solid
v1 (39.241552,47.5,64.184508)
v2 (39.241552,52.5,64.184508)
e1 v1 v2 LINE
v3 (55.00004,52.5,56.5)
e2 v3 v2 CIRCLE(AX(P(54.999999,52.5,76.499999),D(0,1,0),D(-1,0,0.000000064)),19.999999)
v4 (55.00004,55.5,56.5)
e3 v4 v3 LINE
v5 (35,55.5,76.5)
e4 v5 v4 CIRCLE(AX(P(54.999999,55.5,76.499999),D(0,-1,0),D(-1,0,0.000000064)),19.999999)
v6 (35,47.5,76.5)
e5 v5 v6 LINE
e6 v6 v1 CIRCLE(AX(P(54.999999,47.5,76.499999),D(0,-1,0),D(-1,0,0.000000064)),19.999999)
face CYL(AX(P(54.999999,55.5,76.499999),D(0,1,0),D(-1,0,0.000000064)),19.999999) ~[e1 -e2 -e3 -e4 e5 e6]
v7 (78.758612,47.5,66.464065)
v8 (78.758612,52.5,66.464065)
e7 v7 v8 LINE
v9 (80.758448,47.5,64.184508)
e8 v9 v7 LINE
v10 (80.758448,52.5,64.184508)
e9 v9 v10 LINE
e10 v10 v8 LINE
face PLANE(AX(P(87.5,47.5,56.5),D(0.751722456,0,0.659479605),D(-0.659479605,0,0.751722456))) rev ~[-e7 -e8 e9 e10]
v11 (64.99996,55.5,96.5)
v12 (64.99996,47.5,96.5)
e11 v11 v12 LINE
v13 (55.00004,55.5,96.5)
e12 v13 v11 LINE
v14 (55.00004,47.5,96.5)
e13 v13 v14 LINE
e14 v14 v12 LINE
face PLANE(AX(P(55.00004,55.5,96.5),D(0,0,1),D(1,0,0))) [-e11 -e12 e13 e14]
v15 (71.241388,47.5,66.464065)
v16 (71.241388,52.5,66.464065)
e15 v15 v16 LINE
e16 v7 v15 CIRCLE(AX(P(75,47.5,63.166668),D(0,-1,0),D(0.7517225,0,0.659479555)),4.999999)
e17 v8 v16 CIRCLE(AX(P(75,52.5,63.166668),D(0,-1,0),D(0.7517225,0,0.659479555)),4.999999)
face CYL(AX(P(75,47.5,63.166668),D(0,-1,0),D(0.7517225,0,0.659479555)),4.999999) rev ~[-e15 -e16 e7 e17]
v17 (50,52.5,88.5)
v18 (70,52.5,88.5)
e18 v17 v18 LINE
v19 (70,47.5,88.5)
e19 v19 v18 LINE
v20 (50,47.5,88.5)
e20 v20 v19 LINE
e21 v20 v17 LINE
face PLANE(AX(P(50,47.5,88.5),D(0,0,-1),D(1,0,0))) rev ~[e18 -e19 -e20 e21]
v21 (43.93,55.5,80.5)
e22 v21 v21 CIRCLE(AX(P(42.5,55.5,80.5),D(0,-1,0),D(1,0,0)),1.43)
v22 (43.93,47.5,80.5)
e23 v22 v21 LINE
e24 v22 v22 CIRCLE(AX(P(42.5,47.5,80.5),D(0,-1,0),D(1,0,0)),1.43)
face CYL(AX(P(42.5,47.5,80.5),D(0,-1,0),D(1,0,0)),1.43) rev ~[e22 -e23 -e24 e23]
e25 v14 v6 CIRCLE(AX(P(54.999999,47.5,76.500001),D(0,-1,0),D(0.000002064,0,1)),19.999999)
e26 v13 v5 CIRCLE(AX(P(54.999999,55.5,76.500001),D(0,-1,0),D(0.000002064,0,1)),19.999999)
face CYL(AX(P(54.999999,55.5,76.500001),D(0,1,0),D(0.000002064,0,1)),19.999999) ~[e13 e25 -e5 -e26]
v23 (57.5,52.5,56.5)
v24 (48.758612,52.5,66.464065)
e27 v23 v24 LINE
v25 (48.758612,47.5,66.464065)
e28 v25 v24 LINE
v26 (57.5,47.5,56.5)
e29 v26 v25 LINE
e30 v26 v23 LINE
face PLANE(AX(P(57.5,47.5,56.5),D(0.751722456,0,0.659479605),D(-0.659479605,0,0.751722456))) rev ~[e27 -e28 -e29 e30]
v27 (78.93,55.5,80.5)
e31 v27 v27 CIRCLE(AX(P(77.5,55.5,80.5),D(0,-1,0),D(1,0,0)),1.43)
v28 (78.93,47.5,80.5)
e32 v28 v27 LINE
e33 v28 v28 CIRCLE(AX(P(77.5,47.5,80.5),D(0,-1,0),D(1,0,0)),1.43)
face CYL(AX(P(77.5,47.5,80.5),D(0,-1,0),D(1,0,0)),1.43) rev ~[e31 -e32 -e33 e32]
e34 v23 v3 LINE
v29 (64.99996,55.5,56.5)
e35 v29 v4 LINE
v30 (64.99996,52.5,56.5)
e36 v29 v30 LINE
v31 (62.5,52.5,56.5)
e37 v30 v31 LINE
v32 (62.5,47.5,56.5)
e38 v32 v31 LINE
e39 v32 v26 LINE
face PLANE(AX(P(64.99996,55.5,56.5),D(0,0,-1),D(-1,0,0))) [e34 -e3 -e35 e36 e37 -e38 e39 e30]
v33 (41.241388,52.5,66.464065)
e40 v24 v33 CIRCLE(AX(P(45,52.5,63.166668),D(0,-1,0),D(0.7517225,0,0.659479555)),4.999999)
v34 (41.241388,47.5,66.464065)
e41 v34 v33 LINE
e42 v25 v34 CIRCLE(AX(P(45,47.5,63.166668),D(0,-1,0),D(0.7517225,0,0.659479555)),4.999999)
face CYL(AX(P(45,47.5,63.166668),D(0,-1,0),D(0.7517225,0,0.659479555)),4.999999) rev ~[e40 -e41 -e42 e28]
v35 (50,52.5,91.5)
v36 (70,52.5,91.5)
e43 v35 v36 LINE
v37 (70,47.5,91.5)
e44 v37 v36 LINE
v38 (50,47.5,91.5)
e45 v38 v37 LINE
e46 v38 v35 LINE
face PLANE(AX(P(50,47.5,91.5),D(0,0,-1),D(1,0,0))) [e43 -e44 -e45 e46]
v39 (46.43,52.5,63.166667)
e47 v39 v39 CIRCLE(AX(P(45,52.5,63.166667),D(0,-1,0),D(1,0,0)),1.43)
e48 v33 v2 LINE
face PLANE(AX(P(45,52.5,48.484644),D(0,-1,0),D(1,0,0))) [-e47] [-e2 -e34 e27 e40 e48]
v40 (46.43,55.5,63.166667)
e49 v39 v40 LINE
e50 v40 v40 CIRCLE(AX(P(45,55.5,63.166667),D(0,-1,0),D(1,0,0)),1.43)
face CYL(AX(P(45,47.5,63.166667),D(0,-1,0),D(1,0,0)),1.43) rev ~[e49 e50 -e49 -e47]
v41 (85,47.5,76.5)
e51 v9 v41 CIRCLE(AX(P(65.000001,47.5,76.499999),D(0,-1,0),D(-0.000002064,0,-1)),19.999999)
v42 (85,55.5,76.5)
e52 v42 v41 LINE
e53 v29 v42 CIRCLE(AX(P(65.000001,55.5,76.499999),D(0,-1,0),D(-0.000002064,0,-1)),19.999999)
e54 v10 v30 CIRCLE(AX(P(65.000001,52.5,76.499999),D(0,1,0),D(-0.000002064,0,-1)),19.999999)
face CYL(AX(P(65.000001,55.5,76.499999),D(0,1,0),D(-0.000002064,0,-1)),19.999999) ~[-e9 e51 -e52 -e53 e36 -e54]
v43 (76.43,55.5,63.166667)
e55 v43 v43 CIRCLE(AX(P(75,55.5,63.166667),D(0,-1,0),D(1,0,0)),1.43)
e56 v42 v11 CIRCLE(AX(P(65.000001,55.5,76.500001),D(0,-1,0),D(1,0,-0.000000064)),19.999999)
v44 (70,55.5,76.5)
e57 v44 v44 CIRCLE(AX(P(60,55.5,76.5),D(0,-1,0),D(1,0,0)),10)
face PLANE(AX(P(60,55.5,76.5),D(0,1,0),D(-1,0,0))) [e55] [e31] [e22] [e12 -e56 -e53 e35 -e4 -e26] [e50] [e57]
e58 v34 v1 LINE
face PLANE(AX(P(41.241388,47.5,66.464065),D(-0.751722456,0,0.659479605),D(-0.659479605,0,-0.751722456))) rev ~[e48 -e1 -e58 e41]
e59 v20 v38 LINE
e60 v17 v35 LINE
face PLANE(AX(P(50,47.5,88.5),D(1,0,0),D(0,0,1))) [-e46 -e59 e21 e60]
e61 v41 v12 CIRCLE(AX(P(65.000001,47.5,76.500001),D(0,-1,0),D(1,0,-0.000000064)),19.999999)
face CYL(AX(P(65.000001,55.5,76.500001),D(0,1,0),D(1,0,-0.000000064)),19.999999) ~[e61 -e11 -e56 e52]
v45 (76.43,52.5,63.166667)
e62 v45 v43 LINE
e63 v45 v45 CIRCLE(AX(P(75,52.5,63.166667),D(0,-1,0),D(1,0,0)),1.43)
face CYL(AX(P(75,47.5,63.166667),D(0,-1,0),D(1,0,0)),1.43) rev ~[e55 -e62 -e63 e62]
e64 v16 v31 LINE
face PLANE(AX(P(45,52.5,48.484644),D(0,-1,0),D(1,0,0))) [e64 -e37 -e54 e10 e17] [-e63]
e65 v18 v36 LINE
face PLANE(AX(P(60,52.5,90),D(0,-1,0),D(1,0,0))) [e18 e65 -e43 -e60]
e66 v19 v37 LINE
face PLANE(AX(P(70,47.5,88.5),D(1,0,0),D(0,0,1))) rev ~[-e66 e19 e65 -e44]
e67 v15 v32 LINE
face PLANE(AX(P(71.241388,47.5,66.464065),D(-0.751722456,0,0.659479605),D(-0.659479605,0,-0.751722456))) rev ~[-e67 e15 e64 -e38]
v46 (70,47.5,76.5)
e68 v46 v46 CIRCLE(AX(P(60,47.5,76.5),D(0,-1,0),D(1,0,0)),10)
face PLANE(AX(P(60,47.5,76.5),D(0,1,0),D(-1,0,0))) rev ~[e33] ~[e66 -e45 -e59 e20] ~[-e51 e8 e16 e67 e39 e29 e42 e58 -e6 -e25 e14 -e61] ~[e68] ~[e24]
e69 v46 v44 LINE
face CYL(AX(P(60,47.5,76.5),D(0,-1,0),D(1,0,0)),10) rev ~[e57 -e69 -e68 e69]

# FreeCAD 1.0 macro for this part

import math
import FreeCAD as App
import Part
import Sketcher
from FreeCAD import Vector

doc = App.newDocument("Part")
body = doc.addObject("PartDesign::Body", "Body")

sketch1 = doc.addObject("Sketcher::SketchObject", "Sketch")
body.addObject(sketch1)
sketch1.AttachmentSupport = (doc.XZ_Plane, [""])
sketch1.MapMode = "FlatFace"
sketch1.addGeometry([
    Part.LineSegment(Vector(5, 20, 0), Vector(-5, 20, 0)),
    Part.ArcOfCircle(Part.Circle(Vector(-5, 0, 0), Vector(0, 0, 1), 20), math.radians(90), math.radians(180)),
    Part.ArcOfCircle(Part.Circle(Vector(-5, 0, 0), Vector(0, 0, 1), 20), math.radians(180), math.radians(270)),
    Part.LineSegment(Vector(-5, -20, 0), Vector(5, -20, 0)),
    Part.ArcOfCircle(Part.Circle(Vector(5, 0, 0), Vector(0, 0, 1), 20), math.radians(-90), math.radians(0)),
    Part.ArcOfCircle(Part.Circle(Vector(5, 0, 0), Vector(0, 0, 1), 20), math.radians(0), math.radians(90)),
], False)
sketch1.addConstraint([
    Sketcher.Constraint("Coincident", 0, 2, 1, 1),
    Sketcher.Constraint("Tangent", 1, 2, 2, 1),
    Sketcher.Constraint("Coincident", 2, 2, 3, 1),
    Sketcher.Constraint("Coincident", 3, 2, 4, 1),
    Sketcher.Constraint("Tangent", 4, 2, 5, 1),
    Sketcher.Constraint("Coincident", 5, 2, 0, 1),
    Sketcher.Constraint("Horizontal", 0),
    Sketcher.Constraint("Horizontal", 3),
    Sketcher.Constraint("Equal", 1, 2),
    Sketcher.Constraint("Equal", 2, 4),
    Sketcher.Constraint("Symmetric", 1, 3, 4, 3, -1, 1),
    Sketcher.Constraint("PointOnObject", 1, 2, -1),
    Sketcher.Constraint("PointOnObject", 4, 2, -1),
    Sketcher.Constraint("Vertical", 0, 2, 2, 2),
    Sketcher.Constraint("Vertical", 3, 2, 5, 2),
    Sketcher.Constraint("Radius", 1, 19.999999),
    Sketcher.Constraint("DistanceX", 1, 3, -1, 1, 5.000001),
    Sketcher.Constraint("DistanceX", 0, 2, 0, 1, 9.99992),
    Sketcher.Constraint("DistanceX", 0, 2, -1, 1, 4.99996),
])
pad1 = doc.addObject("PartDesign::Pad", "Pad")
body.addObject(pad1)
pad1.Profile = sketch1
pad1.Length = 8

sketch2 = doc.addObject("Sketcher::SketchObject", "Sketch001")
body.addObject(sketch2)
sketch2.AttachmentSupport = (doc.XZ_Plane, [""])
sketch2.MapMode = "FlatFace"
sketch2.AttachmentOffset = App.Placement(Vector(0, 0, 8), App.Rotation())
sketch2.addGeometry([
    Part.LineSegment(Vector(-2.5, -20, 0), Vector(-11.2, -10, 0)),
    Part.ArcOfCircle(Part.Circle(Vector(-15, -13.3, 0), Vector(0, 0, 1), 5), math.radians(41), math.radians(139)),
    Part.LineSegment(Vector(-18.8, -10, 0), Vector(-27.5, -20, 0)),
    Part.ArcOfCircle(Part.Circle(Vector(-15, -31, 0), Vector(0, 0, 1), 16.6), math.radians(139), math.radians(334)),
    Part.ArcOfCircle(Part.Circle(Vector(15, -31, 0), Vector(0, 0, 1), 16.6), math.radians(-154), math.radians(41)),
    Part.LineSegment(Vector(27.5, -20, 0), Vector(18.8, -10, 0)),
    Part.ArcOfCircle(Part.Circle(Vector(15, -13.3, 0), Vector(0, 0, 1), 5), math.radians(41), math.radians(139)),
    Part.LineSegment(Vector(11.2, -10, 0), Vector(2.5, -20, 0)),
    Part.ArcOfCircle(Part.Circle(Vector(15, -31, 0), Vector(0, 0, 1), 16.6), math.radians(138.74), math.radians(154.43)),
    Part.ArcOfCircle(Part.Circle(Vector(-15, -31, 0), Vector(0, 0, 1), 16.6), math.radians(25.57), math.radians(41.26)),
    Part.LineSegment(Vector(-10, 15, 0), Vector(-10, 12, 0)),
    Part.LineSegment(Vector(-10, 12, 0), Vector(10, 12, 0)),
    Part.LineSegment(Vector(10, 12, 0), Vector(10, 15, 0)),
    Part.LineSegment(Vector(10, 15, 0), Vector(-10, 15, 0)),
], False)
sketch2.addConstraint([
    Sketcher.Constraint("Tangent", 0, 2, 1, 1),
    Sketcher.Constraint("Tangent", 1, 2, 2, 1),
    Sketcher.Constraint("Tangent", 2, 2, 3, 1),
    Sketcher.Constraint("Coincident", 3, 2, 4, 1),
    Sketcher.Constraint("Tangent", 4, 2, 5, 1),
    Sketcher.Constraint("Tangent", 5, 2, 6, 1),
    Sketcher.Constraint("Tangent", 6, 2, 7, 1),
    Sketcher.Constraint("Tangent", 7, 2, 8, 1),
    Sketcher.Constraint("Coincident", 8, 2, 9, 1),
    Sketcher.Constraint("Tangent", 9, 2, 0, 1),
    Sketcher.Constraint("Coincident", 10, 2, 11, 1),
    Sketcher.Constraint("Coincident", 11, 2, 12, 1),
    Sketcher.Constraint("Coincident", 12, 2, 13, 1),
    Sketcher.Constraint("Coincident", 13, 2, 10, 1),
    Sketcher.Constraint("Vertical", 10),
    Sketcher.Constraint("Horizontal", 11),
    Sketcher.Constraint("Vertical", 12),
    Sketcher.Constraint("Horizontal", 13),
    Sketcher.Constraint("Coincident", 8, 3, 4, 3),
    Sketcher.Constraint("Coincident", 9, 3, 3, 3),
    Sketcher.Constraint("Equal", 3, 4),
    Sketcher.Constraint("Equal", 1, 6),
    Sketcher.Constraint("Equal", 4, 8),
    Sketcher.Constraint("Equal", 8, 9),
    Sketcher.Constraint("Symmetric", 3, 3, 4, 3, -2),
    Sketcher.Constraint("Symmetric", 1, 3, 6, 3, -2),
    Sketcher.Constraint("Parallel", 0, 5),
    Sketcher.Constraint("Radius", 1, 4.999999),
    Sketcher.Constraint("DistanceX", 11, 1, 11, 2, 20.0),
    Sketcher.Constraint("DistanceY", 10, 2, 10, 1, 3.0),
    Sketcher.Constraint("DistanceX", 1, 3, -1, 1, 15.0),
    Sketcher.Constraint("DistanceY", 2, 2, -1, 1, 20.0),
    Sketcher.Constraint("DistanceX", 10, 2, -1, 1, 10.0),
    Sketcher.Constraint("DistanceY", -1, 1, 10, 2, 12.0),
    Sketcher.Constraint("DistanceX", 9, 2, 7, 2, 5.0),
    Sketcher.Constraint("Radius", 3, 16.628477),
])
pocket1 = doc.addObject("PartDesign::Pocket", "Pocket")
body.addObject(pocket1)
pocket1.Profile = sketch2
pocket1.Length = 5

sketch3 = doc.addObject("Sketcher::SketchObject", "Sketch002")
body.addObject(sketch3)
sketch3.AttachmentSupport = (doc.XZ_Plane, [""])
sketch3.MapMode = "FlatFace"
sketch3.AttachmentOffset = App.Placement(Vector(0, 0, 8), App.Rotation())
sketch3.addGeometry([
    Part.Circle(Vector(0, 0, 0), Vector(0, 0, 1), 10),
    Part.Circle(Vector(-15, -13.3, 0), Vector(0, 0, 1), 1.4),
    Part.Circle(Vector(15, -13.3, 0), Vector(0, 0, 1), 1.4),
    Part.Circle(Vector(-17.5, 4, 0), Vector(0, 0, 1), 1.4),
    Part.Circle(Vector(17.5, 4, 0), Vector(0, 0, 1), 1.4),
], False)
sketch3.addConstraint([
    Sketcher.Constraint("Coincident", 0, 3, -1, 1),
    Sketcher.Constraint("Equal", 1, 2),
    Sketcher.Constraint("Equal", 2, 3),
    Sketcher.Constraint("Equal", 3, 4),
    Sketcher.Constraint("Symmetric", 1, 3, 2, 3, -2),
    Sketcher.Constraint("Symmetric", 3, 3, 4, 3, -2),
    Sketcher.Constraint("Diameter", 0, 20.0),
    Sketcher.Constraint("Diameter", 1, 2.86),
    Sketcher.Constraint("DistanceX", 1, 3, -1, 1, 15.0),
    Sketcher.Constraint("DistanceY", -1, 1, 3, 3, 4.0),
    Sketcher.Constraint("DistanceX", 3, 3, 4, 3, 35.0),
    Sketcher.Constraint("DistanceY", 1, 3, -1, 1, 13.333333),
])
pocket2 = doc.addObject("PartDesign::Pocket", "Pocket001")
body.addObject(pocket2)
pocket2.Profile = sketch3
pocket2.Length = 10
body2 = doc.addObject("PartDesign::Body", "Body001")
doc.recompute()

body.Placement = App.Placement(Vector(60, 55.5, 76.5), App.Rotation(Vector(0, 0, 1), 0))
boolean = doc.addObject("PartDesign::Boolean", "Boolean")
body2.addObject(boolean)
boolean.Type = "Fuse"
boolean.addObjects([body])

doc.recompute()
